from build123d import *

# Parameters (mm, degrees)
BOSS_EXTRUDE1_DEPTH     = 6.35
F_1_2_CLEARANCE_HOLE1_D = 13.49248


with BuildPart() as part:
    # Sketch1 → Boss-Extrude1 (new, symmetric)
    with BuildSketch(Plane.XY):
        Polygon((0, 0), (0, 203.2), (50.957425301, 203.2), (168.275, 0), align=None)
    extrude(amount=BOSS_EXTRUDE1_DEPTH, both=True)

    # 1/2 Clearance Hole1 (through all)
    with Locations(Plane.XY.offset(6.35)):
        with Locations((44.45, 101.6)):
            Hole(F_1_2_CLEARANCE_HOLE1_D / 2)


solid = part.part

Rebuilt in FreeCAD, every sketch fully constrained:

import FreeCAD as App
import Part
import Sketcher
from FreeCAD import Vector
Q = App.Units.Quantity


def add_polygon(sketch, points):
    """Adds a closed chain of lines whose ends are joined by coincident constraints."""
    first, n = sketch.GeometryCount, len(points)
    for a, b in zip(points, points[1:] + points[:1]):
        sketch.addGeometry(Part.LineSegment(App.Vector(*a, 0), App.Vector(*b, 0)), False)
    for i in range(n):
        sketch.addConstraint(Sketcher.Constraint("Coincident", first + i, 2, first + (i + 1) % n, 1))

doc = App.newDocument("Part")
body = doc.addObject("PartDesign::Body", "Body")

# Sketch on XY plane
sketch1 = body.newObject("Sketcher::SketchObject", "Sketch")
sketch1.AttachmentSupport = (doc.getObject("XY_Plane"), [""])
sketch1.MapMode = "FlatFace"
add_polygon(sketch1, [(0, 203.2), (0, 0), (168.275, 0), (50.957425, 203.2)])  # lines 0-3
sketch1.addConstraint([
    Sketcher.Constraint("Vertical", 0),
    Sketcher.Constraint("Horizontal", 1),
    Sketcher.Constraint("Horizontal", 3),
    Sketcher.Constraint("Coincident", 0, 2, -1, 1),
    Sketcher.Constraint("DistanceY", 0, 2, 0, 1, Q("8 in")),
    Sketcher.Constraint("Angle", 2, Q("120 deg")),
    Sketcher.Constraint("DistanceX", 1, 1, 1, 2, Q("6.625 in")),
])
pad1 = body.newObject("PartDesign::Pad", "Pad")
pad1.Profile = sketch1
pad1.Length = Q("0.5 in")
pad1.Midplane = True

# Sketch on XY plane
sketch2 = body.newObject("Sketcher::SketchObject", "Sketch001")
sketch2.AttachmentSupport = (doc.getObject("XY_Plane"), [""])
sketch2.MapMode = "FlatFace"
sketch2.AttachmentOffset = App.Placement(Vector(0, 0, 0.25 * 25.4), App.Rotation())
sketch2.addGeometry(Part.Circle(Vector(44.45, 101.6, 0), Vector(0, 0, 1), 6.74624), False)
sketch2.addConstraint([
    Sketcher.Constraint("DistanceY", -1, 1, 0, 3, Q("4 in")),
    Sketcher.Constraint("Diameter", 0, Q("0.5312 in")),
    Sketcher.Constraint("DistanceX", -1, 1, 0, 3, Q("1.75 in")),
])
doc.recompute()
hole = body.newObject("PartDesign::Hole", "Hole")
hole.Profile = sketch2
hole.ThreadType = "None"
hole.Diameter = Q("0.5312 in")
hole.DepthType = "ThroughAll"

doc.recompute()
